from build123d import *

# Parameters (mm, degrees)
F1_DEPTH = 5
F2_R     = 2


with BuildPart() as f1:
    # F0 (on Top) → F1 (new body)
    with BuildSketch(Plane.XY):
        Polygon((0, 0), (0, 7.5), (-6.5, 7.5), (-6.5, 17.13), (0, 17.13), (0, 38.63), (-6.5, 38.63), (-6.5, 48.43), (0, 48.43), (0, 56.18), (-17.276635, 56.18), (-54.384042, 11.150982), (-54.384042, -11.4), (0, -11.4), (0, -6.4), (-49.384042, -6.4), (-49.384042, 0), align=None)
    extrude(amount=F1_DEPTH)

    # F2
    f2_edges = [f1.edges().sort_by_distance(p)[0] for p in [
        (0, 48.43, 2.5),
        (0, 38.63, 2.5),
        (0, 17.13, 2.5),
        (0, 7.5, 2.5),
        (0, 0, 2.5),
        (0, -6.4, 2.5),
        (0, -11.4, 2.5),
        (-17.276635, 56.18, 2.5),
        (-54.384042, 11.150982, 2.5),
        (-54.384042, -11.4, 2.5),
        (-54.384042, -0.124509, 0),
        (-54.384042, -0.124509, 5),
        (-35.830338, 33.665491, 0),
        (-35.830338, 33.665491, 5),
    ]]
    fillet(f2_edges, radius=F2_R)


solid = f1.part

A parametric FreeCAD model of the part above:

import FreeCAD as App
import Part
import Sketcher
from FreeCAD import Vector


def edges_at(feature, points):
    """Names of the edges that pass closest to the given points."""
    edges = feature.Shape.Edges
    near = lambda p: min(range(len(edges)), key=lambda i: edges[i].distToShape(Part.Vertex(*p))[0])
    return sorted({f"Edge{near(p) + 1}" for p in points})


def add_polygon(sketch, points):
    """Adds a closed chain of lines whose ends are joined by coincident constraints."""
    first, n = sketch.GeometryCount, len(points)
    for a, b in zip(points, points[1:] + points[:1]):
        sketch.addGeometry(Part.LineSegment(App.Vector(*a, 0), App.Vector(*b, 0)), False)
    for i in range(n):
        sketch.addConstraint(Sketcher.Constraint("Coincident", first + i, 2, first + (i + 1) % n, 1))

doc = App.newDocument("Part")
params = doc.addObject("Spreadsheet::Sheet", "Params")
for row, (alias, value) in enumerate([
    ("sketch1_height", "5 mm"),
    ("sketch1_width", "6.5 mm"),
    ("sketch1_height2", "7.5 mm"),
    ("sketch1_height3", "21.5 mm"),
    ("sketch1_height4", "9.8 mm"),
    ("pad1_length", "5 mm"),
    ("fillet_radius", "2 mm"),
], start=1):
    params.set(f"A{row}", alias)
    params.set(f"B{row}", "=" + value)
    params.setAlias(f"B{row}", alias)

body = doc.addObject("PartDesign::Body", "Body")

sketch1 = body.newObject("Sketcher::SketchObject", "Sketch")
sketch1.AttachmentSupport = (doc.getObject("XY_Plane"), [""])
sketch1.MapMode = "FlatFace"
add_polygon(sketch1, [(0, 0), (0, 8), (-6, 8), (-6, 17), (0, 17), (0, 39), (-6, 39), (-6, 48), (0, 48), (0, 56), (-17, 56), (-54, 11), (-54, -11), (0, -11), (0, -6), (-49, -6), (-49, 0)])
sketch1.addConstraint([
    Sketcher.Constraint("Vertical", 0),
    Sketcher.Constraint("Horizontal", 1),
    Sketcher.Constraint("Vertical", 2),
    Sketcher.Constraint("Horizontal", 3),
    Sketcher.Constraint("Vertical", 4),
    Sketcher.Constraint("Horizontal", 5),
    Sketcher.Constraint("Vertical", 6),
    Sketcher.Constraint("Horizontal", 7),
    Sketcher.Constraint("Vertical", 8),
    Sketcher.Constraint("Horizontal", 9),
    Sketcher.Constraint("Vertical", 11),
    Sketcher.Constraint("Horizontal", 12),
    Sketcher.Constraint("Vertical", 13),
    Sketcher.Constraint("Horizontal", 14),
    Sketcher.Constraint("Vertical", 15),
    Sketcher.Constraint("Horizontal", 16),
    Sketcher.Constraint("Coincident", 16, 2, -1, 1),
    Sketcher.Constraint("PointOnObject", 3, 2, -2),
    Sketcher.Constraint("PointOnObject", 7, 2, -2),
    Sketcher.Constraint("PointOnObject", 12, 2, -2),
    Sketcher.Constraint("Vertical", 2, 2, 5, 2),
    Sketcher.Constraint("DistanceY", 13, 1, 13, 2, 5.0),
    Sketcher.Constraint("DistanceX", 1, 2, 1, 1, 6.5),
    Sketcher.Constraint("DistanceY", 0, 1, 0, 2, 7.5),
    Sketcher.Constraint("DistanceY", 4, 1, 4, 2, 21.5),
    Sketcher.Constraint("DistanceY", 6, 1, 6, 2, 9.8),
    Sketcher.Constraint("DistanceY", 15, 1, 15, 2, 6.4),
    Sketcher.Constraint("DistanceX", 11, 2, 14, 2, 5.0),
    Sketcher.Constraint("DistanceY", 2, 1, 2, 2, 9.63),
    Sketcher.Constraint("DistanceY", 8, 1, 8, 2, 7.75),
    Sketcher.Constraint("Distance", 10, 58.348711),
    Sketcher.Constraint("DistanceX", 9, 2, 9, 1, 17.276635),
    Sketcher.Constraint("DistanceX", 12, 1, 12, 2, 54.384042),
])
sketch1.setExpression("Constraints[38]", "Params.sketch1_height")
sketch1.setExpression("Constraints[39]", "Params.sketch1_width")
sketch1.setExpression("Constraints[40]", "Params.sketch1_height2")
sketch1.setExpression("Constraints[41]", "Params.sketch1_height3")
sketch1.setExpression("Constraints[42]", "Params.sketch1_height4")
pad1 = body.newObject("PartDesign::Pad", "Pad")
pad1.Profile = sketch1
pad1.setExpression("Length", "Params.pad1_length")
doc.recompute()

fillet = body.newObject("PartDesign::Fillet", "Fillet")
fillet.Base = (pad1, edges_at(pad1, [
    (0, 48.43, 2.5),
    (0, 38.63, 2.5),
    (0, 17.13, 2.5),
    (0, 7.5, 2.5),
    (0, 0, 2.5),
    (0, -6.4, 2.5),
    (0, -11.4, 2.5),
    (-17.277, 56.18, 2.5),
    (-54.384, 11.151, 2.5),
    (-54.384, -11.4, 2.5),
    (-54.384, -0.125, 0),
    (-54.384, -0.125, 5),
    (-35.83, 33.665, 0),
    (-35.83, 33.665, 5),
]))
fillet.setExpression("Radius", "Params.fillet_radius")

doc.recompute()
